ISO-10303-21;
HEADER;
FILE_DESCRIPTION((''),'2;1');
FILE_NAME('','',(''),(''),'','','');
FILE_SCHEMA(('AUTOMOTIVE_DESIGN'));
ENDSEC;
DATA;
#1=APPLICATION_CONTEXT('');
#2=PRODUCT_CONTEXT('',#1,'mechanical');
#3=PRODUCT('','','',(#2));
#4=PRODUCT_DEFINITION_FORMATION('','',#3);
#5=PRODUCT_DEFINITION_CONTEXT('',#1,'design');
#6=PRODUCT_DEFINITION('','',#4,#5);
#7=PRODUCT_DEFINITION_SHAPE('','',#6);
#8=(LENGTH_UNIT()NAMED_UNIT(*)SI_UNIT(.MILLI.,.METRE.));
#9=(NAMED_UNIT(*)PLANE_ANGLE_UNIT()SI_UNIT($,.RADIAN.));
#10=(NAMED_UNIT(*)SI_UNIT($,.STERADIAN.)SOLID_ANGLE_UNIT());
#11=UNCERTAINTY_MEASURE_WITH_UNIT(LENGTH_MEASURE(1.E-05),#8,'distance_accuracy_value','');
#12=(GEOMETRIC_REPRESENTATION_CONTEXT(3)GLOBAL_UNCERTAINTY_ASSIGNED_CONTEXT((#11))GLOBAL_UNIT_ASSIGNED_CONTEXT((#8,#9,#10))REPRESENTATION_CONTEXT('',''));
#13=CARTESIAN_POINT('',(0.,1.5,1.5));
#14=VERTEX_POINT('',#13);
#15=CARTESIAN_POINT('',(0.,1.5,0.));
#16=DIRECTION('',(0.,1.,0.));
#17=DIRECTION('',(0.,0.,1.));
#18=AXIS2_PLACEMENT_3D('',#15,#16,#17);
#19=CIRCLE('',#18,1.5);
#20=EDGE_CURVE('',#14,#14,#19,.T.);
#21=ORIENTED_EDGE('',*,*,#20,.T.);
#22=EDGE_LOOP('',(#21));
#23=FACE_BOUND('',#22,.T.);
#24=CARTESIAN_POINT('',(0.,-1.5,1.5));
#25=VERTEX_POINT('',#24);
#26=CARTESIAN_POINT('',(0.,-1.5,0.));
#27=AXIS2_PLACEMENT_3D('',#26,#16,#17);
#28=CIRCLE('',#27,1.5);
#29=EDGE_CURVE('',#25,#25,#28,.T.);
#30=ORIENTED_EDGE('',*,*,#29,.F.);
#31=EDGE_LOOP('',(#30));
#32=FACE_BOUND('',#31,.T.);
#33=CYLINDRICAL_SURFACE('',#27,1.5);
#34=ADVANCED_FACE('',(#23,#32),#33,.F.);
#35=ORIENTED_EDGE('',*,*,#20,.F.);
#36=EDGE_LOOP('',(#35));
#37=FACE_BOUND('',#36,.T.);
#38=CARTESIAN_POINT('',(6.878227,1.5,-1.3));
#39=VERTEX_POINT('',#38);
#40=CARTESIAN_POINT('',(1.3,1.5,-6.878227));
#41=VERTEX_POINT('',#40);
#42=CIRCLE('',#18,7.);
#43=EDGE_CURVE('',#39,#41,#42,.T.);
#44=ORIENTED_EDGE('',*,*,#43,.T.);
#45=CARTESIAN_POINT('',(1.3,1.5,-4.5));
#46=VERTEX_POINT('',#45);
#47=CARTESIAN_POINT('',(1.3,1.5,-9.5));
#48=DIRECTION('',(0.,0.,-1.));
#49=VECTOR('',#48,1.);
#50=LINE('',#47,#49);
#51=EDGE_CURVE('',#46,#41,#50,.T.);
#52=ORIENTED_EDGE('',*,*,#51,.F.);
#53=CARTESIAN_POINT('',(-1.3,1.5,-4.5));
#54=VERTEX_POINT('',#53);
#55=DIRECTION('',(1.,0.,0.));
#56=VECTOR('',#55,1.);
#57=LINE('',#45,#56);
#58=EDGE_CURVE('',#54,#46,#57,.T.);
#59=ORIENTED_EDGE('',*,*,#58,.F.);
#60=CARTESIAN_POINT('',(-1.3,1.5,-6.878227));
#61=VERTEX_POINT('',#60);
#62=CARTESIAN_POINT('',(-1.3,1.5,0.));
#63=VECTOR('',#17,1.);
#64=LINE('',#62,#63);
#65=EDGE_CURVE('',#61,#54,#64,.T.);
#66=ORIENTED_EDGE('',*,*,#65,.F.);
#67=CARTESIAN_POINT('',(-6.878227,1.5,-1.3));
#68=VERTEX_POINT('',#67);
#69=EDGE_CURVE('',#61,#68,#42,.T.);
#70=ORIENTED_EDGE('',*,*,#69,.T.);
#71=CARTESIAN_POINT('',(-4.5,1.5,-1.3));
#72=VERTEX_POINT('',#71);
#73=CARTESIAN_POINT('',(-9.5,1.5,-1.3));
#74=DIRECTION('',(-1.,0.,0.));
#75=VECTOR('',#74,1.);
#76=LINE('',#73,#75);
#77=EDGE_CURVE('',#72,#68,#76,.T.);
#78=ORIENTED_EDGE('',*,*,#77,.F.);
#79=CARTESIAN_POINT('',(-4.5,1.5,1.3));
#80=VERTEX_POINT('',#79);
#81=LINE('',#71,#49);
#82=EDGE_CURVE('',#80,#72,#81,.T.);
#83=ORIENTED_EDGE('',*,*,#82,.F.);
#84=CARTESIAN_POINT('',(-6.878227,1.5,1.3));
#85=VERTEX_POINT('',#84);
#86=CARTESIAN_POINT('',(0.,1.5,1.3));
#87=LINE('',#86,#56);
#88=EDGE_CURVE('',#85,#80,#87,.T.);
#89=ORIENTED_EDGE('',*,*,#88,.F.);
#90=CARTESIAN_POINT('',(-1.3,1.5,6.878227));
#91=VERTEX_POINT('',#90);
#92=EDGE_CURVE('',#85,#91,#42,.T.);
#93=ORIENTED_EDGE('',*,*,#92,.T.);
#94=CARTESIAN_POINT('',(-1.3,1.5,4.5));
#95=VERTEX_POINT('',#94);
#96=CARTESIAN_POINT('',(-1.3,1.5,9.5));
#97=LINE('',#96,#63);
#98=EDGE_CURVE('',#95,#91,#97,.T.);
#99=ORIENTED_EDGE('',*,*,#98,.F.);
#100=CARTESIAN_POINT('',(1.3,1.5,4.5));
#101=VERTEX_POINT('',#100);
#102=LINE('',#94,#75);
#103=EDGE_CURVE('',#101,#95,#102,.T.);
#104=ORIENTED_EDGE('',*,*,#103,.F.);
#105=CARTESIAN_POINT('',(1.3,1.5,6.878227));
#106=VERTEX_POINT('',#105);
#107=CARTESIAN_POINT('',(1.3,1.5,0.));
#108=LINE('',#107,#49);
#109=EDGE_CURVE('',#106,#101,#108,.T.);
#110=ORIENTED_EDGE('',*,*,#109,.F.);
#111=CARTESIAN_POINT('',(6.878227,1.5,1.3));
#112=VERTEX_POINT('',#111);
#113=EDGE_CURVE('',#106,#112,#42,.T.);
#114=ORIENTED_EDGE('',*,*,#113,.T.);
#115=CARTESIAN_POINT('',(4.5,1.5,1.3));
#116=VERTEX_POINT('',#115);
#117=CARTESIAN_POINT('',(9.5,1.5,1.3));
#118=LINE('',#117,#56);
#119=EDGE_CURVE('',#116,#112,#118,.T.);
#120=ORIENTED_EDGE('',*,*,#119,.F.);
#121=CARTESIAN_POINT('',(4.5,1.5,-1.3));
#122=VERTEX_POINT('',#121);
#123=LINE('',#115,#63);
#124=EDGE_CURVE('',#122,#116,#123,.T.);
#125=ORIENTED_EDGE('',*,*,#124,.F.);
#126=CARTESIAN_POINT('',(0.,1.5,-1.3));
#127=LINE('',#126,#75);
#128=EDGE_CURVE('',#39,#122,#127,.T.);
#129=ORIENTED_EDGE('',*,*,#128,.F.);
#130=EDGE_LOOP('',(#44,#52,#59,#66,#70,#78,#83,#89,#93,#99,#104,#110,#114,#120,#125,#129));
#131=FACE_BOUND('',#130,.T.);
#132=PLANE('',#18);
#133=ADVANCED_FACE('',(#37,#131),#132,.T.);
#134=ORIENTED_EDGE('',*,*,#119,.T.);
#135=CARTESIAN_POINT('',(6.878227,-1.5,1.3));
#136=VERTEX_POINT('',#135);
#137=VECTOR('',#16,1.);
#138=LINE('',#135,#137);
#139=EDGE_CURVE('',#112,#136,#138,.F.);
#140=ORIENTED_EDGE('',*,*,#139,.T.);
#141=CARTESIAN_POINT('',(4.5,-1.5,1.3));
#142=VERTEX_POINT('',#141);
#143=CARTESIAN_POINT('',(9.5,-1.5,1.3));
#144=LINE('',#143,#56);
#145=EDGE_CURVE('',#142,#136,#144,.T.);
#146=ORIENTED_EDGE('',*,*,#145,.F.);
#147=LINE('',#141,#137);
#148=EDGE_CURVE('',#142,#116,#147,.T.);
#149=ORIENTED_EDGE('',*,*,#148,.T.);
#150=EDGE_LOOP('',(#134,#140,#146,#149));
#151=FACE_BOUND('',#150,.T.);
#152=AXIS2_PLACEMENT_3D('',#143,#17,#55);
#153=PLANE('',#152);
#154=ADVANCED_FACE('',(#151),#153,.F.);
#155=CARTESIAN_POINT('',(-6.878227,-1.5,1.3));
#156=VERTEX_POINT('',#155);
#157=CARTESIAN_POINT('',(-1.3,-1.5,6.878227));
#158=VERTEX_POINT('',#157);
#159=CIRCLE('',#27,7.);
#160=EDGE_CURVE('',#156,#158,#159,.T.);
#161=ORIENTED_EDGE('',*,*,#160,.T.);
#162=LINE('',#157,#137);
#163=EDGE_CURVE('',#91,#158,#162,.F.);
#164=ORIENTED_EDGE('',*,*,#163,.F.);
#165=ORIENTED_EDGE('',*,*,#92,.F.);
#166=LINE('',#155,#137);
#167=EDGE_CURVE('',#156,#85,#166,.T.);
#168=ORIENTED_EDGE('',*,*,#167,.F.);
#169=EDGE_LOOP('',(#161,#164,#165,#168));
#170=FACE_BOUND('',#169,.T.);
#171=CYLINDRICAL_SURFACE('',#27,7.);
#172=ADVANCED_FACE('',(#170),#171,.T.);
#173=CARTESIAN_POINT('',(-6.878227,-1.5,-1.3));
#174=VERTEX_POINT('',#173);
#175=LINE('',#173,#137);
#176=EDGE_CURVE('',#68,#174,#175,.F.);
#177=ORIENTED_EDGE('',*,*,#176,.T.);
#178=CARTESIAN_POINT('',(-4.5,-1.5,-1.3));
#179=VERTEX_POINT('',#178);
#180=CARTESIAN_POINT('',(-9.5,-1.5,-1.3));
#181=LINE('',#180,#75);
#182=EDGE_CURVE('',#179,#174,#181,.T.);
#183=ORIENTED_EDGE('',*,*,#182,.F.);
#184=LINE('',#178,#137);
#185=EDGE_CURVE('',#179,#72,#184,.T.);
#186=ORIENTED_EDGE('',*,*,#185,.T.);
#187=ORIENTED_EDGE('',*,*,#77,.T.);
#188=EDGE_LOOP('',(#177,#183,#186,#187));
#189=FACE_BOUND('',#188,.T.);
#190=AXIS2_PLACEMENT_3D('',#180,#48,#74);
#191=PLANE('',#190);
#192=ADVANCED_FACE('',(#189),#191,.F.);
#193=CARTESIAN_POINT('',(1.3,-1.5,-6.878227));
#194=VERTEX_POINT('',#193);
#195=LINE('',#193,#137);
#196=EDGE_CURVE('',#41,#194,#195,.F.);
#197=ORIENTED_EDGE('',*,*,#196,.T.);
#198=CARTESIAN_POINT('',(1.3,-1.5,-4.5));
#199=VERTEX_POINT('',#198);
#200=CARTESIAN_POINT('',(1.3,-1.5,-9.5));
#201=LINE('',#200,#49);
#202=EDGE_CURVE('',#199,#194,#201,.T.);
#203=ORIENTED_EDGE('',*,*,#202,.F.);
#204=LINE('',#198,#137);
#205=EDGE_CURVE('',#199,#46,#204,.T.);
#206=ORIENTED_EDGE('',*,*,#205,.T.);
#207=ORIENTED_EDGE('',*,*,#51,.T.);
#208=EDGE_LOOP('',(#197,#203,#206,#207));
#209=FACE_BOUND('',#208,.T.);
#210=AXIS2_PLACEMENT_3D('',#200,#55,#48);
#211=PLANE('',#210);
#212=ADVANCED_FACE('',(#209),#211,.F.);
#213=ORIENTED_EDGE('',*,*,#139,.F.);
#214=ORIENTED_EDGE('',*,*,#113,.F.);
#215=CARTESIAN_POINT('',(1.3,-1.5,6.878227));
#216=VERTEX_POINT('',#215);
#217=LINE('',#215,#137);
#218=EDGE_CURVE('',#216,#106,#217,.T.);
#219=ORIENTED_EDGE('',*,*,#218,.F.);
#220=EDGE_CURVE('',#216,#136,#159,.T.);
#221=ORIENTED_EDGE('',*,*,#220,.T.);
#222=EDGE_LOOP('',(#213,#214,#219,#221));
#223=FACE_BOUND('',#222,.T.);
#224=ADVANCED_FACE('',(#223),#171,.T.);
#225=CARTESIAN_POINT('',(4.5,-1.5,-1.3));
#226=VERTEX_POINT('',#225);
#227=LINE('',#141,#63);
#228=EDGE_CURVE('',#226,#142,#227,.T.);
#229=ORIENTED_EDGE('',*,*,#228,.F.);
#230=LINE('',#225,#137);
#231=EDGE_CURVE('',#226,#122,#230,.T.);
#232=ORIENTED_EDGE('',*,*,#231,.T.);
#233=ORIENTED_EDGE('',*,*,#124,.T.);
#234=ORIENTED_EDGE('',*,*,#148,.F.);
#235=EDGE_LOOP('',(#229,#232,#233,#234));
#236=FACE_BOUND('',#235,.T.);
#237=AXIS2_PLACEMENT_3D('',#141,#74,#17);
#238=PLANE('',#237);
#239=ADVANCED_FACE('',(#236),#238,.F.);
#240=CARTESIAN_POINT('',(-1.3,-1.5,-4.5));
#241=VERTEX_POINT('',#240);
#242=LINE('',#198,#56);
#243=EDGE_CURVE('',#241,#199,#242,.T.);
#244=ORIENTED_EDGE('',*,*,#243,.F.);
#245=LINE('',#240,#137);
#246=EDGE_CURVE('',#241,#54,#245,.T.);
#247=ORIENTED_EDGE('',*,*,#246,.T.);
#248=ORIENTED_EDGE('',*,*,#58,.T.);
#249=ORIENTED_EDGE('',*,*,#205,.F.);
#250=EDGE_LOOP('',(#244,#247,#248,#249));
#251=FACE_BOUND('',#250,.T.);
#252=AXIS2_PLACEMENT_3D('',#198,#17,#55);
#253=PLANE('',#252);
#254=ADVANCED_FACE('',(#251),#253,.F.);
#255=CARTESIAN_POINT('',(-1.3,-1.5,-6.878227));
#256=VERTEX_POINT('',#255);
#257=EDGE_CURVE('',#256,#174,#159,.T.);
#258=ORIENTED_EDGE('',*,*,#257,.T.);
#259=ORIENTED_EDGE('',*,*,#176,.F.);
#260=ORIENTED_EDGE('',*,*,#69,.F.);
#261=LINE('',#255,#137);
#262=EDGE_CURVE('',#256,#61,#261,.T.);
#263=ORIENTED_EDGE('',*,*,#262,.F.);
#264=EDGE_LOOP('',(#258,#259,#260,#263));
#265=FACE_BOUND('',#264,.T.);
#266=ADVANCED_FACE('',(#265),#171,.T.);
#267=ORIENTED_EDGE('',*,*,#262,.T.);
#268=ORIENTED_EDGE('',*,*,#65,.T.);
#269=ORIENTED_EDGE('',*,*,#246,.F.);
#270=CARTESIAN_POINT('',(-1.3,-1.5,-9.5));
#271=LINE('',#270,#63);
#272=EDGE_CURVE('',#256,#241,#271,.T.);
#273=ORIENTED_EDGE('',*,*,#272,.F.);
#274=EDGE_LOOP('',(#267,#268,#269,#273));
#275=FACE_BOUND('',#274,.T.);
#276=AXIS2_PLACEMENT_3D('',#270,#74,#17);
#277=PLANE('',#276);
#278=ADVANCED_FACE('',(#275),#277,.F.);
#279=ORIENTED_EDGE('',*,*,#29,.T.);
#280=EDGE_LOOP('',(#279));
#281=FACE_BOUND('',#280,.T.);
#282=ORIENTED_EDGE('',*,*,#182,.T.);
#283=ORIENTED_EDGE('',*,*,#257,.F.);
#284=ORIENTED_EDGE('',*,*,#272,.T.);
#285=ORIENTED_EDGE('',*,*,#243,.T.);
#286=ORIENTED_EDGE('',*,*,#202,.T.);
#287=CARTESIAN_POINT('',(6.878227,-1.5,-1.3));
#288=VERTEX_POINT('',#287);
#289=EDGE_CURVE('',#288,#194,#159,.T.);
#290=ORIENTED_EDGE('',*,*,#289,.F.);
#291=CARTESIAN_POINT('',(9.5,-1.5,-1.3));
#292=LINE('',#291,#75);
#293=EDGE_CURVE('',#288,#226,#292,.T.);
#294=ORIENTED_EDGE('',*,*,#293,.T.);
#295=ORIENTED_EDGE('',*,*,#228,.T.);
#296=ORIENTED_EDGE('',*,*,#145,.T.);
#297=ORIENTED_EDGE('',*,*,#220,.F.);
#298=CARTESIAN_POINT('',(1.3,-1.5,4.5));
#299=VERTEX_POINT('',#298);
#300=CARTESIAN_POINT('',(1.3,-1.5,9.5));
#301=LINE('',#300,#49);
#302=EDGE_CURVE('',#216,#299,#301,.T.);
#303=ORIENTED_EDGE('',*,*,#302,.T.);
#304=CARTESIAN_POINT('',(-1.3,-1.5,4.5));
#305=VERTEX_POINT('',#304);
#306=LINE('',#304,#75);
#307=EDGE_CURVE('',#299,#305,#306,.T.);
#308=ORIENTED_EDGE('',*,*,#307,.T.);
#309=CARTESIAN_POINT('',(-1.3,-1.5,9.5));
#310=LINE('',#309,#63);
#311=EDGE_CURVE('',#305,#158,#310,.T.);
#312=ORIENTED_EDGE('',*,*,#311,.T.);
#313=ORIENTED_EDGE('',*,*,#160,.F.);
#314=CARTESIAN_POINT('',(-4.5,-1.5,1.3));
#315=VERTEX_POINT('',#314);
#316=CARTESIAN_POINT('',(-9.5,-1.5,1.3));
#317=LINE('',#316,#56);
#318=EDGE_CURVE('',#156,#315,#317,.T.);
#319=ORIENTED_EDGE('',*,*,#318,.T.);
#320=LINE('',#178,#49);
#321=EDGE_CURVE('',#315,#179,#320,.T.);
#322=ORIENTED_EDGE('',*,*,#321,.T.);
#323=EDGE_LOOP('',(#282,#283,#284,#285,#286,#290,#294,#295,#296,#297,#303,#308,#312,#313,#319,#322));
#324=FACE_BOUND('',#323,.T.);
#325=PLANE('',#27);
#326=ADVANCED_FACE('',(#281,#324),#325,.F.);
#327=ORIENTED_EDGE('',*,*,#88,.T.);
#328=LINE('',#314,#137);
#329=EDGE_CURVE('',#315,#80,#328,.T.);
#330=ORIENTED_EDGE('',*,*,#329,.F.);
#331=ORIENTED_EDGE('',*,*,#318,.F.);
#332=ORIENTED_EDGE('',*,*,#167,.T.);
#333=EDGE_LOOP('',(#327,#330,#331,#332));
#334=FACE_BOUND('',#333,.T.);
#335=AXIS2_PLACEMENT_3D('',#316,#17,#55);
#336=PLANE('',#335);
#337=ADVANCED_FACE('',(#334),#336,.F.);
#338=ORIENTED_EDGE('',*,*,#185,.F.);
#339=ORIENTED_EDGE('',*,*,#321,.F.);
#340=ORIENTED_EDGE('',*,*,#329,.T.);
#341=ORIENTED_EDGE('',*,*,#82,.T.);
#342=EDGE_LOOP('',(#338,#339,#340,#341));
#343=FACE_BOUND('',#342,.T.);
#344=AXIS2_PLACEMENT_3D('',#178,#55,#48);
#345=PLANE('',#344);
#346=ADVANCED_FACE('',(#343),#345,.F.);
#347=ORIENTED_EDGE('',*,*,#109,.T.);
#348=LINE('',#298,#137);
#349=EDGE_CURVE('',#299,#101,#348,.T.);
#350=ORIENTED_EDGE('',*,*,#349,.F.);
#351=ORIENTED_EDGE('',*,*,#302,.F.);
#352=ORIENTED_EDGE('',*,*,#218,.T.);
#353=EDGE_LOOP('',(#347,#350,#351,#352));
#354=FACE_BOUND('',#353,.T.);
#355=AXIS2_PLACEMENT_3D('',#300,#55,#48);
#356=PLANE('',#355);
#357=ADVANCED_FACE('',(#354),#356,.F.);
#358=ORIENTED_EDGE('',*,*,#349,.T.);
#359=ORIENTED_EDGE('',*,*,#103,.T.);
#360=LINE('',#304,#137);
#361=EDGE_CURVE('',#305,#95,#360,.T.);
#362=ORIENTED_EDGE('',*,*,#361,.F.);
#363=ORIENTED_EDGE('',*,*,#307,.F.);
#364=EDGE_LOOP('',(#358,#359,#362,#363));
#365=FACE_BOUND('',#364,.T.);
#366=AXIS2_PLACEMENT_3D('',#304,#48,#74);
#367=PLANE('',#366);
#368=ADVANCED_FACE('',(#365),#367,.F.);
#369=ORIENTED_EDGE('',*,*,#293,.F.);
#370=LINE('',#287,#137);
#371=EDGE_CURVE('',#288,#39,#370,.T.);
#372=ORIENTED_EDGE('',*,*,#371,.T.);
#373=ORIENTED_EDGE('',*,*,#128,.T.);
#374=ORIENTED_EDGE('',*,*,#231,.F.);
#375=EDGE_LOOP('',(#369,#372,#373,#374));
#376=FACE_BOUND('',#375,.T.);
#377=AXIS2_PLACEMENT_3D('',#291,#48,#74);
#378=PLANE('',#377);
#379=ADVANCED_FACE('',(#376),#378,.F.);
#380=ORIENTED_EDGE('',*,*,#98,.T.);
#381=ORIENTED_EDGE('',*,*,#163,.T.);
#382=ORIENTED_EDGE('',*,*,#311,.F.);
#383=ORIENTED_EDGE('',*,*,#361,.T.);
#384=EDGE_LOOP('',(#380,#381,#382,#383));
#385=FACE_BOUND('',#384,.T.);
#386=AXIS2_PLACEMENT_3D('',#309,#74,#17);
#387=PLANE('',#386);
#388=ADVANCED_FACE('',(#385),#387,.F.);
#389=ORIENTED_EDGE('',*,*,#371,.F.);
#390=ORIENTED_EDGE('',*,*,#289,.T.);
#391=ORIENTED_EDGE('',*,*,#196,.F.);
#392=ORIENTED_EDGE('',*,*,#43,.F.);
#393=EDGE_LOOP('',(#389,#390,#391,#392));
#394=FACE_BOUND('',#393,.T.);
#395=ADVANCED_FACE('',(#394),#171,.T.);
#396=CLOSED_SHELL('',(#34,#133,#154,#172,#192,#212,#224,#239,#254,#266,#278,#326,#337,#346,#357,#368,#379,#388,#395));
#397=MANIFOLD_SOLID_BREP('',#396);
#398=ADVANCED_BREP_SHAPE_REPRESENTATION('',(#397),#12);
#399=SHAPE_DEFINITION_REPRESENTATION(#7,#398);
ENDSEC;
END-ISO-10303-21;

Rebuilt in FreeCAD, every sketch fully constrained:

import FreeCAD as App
import Part
import Sketcher
from FreeCAD import Vector
Q = App.Units.Quantity

doc = App.newDocument("Part")
params = doc.addObject("Spreadsheet::Sheet", "Params")
for row, (alias, value) in enumerate([
    ("sketch1_diameter", "14 mm"),
    ("sketch1_diameter2", "3 mm"),
    ("pad1_length", "1.5 mm"),
    ("pad1_length2", "1.5 mm"),
    ("sketch2_width", "5 mm"),
    ("sketch2_height", "2.6 mm"),
], start=1):
    params.set(f"A{row}", alias)
    params.set(f"B{row}", "=" + value)
    params.setAlias(f"B{row}", alias)

body = doc.addObject("PartDesign::Body", "Body")

sketch1 = body.newObject("Sketcher::SketchObject", "Sketch")
sketch1.AttachmentSupport = (doc.getObject("XZ_Plane"), [""])
sketch1.MapMode = "FlatFace"
sketch1.addGeometry([
    Part.Circle(Vector(0, 0, 0), Vector(0, 0, 1), 7),
    Part.Circle(Vector(0, 0, 0), Vector(0, 0, 1), 1.5),
], False)
sketch1.addConstraint([
    Sketcher.Constraint("Coincident", 0, 3, -1, 1),
    Sketcher.Constraint("Coincident", 1, 3, -1, 1),
    Sketcher.Constraint("Diameter", 0, Q("14 mm")),
    Sketcher.Constraint("Diameter", 1, Q("3 mm")),
])
sketch1.setExpression("Constraints[2]", "Params.sketch1_diameter")
sketch1.setExpression("Constraints[3]", "Params.sketch1_diameter2")
pad1 = body.newObject("PartDesign::Pad", "Pad")
pad1.Profile = sketch1
pad1.Type = "TwoLengths"
pad1.setExpression("Length", "Params.pad1_length")
pad1.setExpression("Length2", "Params.pad1_length2")
pad1.Reversed = True

sketch2 = body.newObject("Sketcher::SketchObject", "Sketch001")
sketch2.AttachmentSupport = (doc.getObject("XZ_Plane"), [""])
sketch2.MapMode = "FlatFace"
sketch2.AttachmentOffset = App.Placement(Vector(0, 0, -1.5), App.Rotation())
sketch2.addGeometry([
    Part.LineSegment(Vector(4.5, -1.3, 0), Vector(4.5, 1.3, 0)),
    Part.LineSegment(Vector(4.5, 1.3, 0), Vector(9.5, 1.3, 0)),
    Part.LineSegment(Vector(9.5, 1.3, 0), Vector(9.5, -1.3, 0)),
    Part.LineSegment(Vector(9.5, -1.3, 0), Vector(4.5, -1.3, 0)),
], False)
sketch2.addConstraint([
    Sketcher.Constraint("Coincident", 0, 2, 1, 1),
    Sketcher.Constraint("Coincident", 1, 2, 2, 1),
    Sketcher.Constraint("Coincident", 2, 2, 3, 1),
    Sketcher.Constraint("Coincident", 3, 2, 0, 1),
    Sketcher.Constraint("Vertical", 0),
    Sketcher.Constraint("Horizontal", 1),
    Sketcher.Constraint("Vertical", 2),
    Sketcher.Constraint("Horizontal", 3),
    Sketcher.Constraint("DistanceX", 1, 1, 1, 2, Q("5 mm")),
    Sketcher.Constraint("DistanceY", 0, 1, 0, 2, Q("2.6 mm")),
    Sketcher.Constraint("DistanceX", -1, 1, 0, 2, Q("4.5 mm")),
    Sketcher.Constraint("DistanceY", -1, 1, 0, 2, Q("1.3 mm")),
])
sketch2.setExpression("Constraints[8]", "Params.sketch2_width")
sketch2.setExpression("Constraints[9]", "Params.sketch2_height")
pocket1 = body.newObject("PartDesign::Pocket", "Pocket")
pocket1.Profile = sketch2
pocket1.Type = "ThroughAll"
pocket1.Reversed = True
doc.recompute()

polarpattern = body.newObject("PartDesign::PolarPattern", "PolarPattern")
polarpattern.Originals = [pocket1]
polarpattern.Axis = (doc.getObject("Y_Axis"), [""])
polarpattern.Angle = 360
polarpattern.Occurrences = 4
body.Tip = polarpattern

doc.recompute()
